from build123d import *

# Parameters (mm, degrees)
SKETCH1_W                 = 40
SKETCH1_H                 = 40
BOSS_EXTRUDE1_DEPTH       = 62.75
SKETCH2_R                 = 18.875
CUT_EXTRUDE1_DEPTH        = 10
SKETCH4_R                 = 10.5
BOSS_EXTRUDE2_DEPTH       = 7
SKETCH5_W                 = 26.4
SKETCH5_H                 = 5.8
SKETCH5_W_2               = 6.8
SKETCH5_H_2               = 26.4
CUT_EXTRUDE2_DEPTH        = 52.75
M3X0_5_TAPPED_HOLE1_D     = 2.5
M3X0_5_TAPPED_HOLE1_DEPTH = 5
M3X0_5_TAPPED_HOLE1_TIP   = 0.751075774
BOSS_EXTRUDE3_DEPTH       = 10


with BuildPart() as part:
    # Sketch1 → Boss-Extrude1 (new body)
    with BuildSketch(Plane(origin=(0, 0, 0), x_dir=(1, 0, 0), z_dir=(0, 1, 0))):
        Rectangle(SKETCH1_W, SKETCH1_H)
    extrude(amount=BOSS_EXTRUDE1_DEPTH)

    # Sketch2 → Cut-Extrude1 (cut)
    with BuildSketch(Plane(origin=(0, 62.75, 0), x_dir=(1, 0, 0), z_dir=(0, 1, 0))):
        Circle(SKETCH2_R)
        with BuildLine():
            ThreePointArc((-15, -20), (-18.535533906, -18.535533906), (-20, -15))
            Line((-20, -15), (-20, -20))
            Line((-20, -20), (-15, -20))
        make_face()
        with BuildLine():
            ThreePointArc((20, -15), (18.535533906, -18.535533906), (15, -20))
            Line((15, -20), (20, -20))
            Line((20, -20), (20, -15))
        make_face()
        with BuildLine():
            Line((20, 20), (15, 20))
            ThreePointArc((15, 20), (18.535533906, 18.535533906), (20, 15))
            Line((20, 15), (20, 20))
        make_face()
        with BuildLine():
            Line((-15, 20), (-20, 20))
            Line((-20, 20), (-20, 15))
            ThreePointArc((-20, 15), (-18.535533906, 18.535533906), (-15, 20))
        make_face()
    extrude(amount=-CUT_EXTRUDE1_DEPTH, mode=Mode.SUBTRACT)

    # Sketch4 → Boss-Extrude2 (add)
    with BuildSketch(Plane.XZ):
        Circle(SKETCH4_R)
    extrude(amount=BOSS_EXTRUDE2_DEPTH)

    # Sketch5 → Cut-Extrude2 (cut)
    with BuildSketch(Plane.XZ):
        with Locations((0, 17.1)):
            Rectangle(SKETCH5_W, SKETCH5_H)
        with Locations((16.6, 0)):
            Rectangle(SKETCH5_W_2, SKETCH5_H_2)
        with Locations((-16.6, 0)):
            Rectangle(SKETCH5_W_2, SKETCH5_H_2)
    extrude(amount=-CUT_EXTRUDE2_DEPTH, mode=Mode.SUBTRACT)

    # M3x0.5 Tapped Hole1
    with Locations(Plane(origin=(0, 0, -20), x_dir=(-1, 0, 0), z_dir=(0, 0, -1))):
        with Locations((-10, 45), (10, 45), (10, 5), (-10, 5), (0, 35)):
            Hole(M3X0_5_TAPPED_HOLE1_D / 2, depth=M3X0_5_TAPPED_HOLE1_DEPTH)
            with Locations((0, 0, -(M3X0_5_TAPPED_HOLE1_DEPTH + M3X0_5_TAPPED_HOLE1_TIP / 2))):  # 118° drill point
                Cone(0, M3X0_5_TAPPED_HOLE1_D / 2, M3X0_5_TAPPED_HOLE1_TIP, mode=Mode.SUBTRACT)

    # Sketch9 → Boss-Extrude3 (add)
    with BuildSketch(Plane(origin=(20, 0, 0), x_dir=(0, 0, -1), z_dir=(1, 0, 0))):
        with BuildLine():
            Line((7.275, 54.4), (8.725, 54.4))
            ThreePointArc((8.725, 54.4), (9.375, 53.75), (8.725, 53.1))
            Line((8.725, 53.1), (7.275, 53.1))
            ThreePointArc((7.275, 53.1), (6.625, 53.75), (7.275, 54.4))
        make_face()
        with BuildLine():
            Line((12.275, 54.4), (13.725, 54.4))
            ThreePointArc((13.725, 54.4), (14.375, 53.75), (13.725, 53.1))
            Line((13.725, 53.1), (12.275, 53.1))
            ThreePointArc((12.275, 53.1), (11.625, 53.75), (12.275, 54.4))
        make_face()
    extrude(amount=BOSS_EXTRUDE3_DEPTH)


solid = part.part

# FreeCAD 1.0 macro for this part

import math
import FreeCAD as App
import Part
import Sketcher
Q = App.Units.Quantity


def add_polygon(sketch, points):
    """Adds a closed chain of lines whose ends are joined by coincident constraints."""
    first, n = sketch.GeometryCount, len(points)
    for a, b in zip(points, points[1:] + points[:1]):
        sketch.addGeometry(Part.LineSegment(App.Vector(*a, 0), App.Vector(*b, 0)), False)
    for i in range(n):
        sketch.addConstraint(Sketcher.Constraint("Coincident", first + i, 2, first + (i + 1) % n, 1))

doc = App.newDocument("Part")
params = doc.addObject("Spreadsheet::Sheet", "Params")
for row, (alias, value) in enumerate([
    ("sketch1_width", "40 mm"),
    ("pad1_length", "62.75 mm"),
    ("sketch2_radius", "5 mm"),
    ("sketch2_diameter", "37.75 mm"),
    ("pocket1_length", "10 mm"),
    ("sketch3_diameter", "21 mm"),
    ("pad2_length", "7 mm"),
    ("sketch4_width", "26.4 mm"),
    ("sketch4_width2", "6.8 mm"),
    ("sketch4_height", "5.8 mm"),
    ("pocket2_length", "52.75 mm"),
    ("sketch5_diameter", "2.5 mm"),
    ("hole_diameter", "2.5 mm"),
    ("hole_depth", "5 mm"),
    ("sketch6_radius", "0.65 mm"),
    ("sketch6_height", "1.45 mm"),
    ("pad3_length", "10 mm"),
], start=1):
    params.set(f"A{row}", alias)
    params.set(f"B{row}", "=" + value)
    params.setAlias(f"B{row}", alias)

body = doc.addObject("PartDesign::Body", "Body")

sketch1 = doc.addObject("Sketcher::SketchObject", "Sketch")
body.addObject(sketch1)
sketch1.AttachmentSupport = (doc.XZ_Plane, [""])
sketch1.MapMode = "FlatFace"
add_polygon(sketch1, [(-20, -20), (-20, 20), (20, 20), (20, -20)])
sketch1.addConstraint(Sketcher.Constraint("Vertical", 0))
sketch1.addConstraint(Sketcher.Constraint("Horizontal", 1))
sketch1.addConstraint(Sketcher.Constraint("Vertical", 2))
sketch1.addConstraint(Sketcher.Constraint("Horizontal", 3))
sketch1.addConstraint(Sketcher.Constraint("Symmetric", 0, 2, 2, 2, -1, 1))
sketch1.addConstraint(Sketcher.Constraint("Equal", 3, 0))
sketch1.addConstraint(Sketcher.Constraint("DistanceX", 1, 1, 1, 2, Q("40 mm")))
sketch1.setExpression("Constraints[10]", "Params.sketch1_width")
pad1 = doc.addObject("PartDesign::Pad", "Pad")
body.addObject(pad1)
pad1.Profile = sketch1
pad1.setExpression("Length", "Params.pad1_length")
pad1.Reversed = True

sketch2 = doc.addObject("Sketcher::SketchObject", "Sketch001")
body.addObject(sketch2)
sketch2.AttachmentSupport = (doc.XZ_Plane, [""])
sketch2.MapMode = "FlatFace"
sketch2.AttachmentOffset = App.Placement(App.Vector(0, 0, -62.75), App.Rotation())
sketch2.addGeometry(Part.Circle(App.Vector(0, 0, 0), App.Vector(0, 0, 1), 18.875), False)
sketch2.addGeometry(Part.ArcOfCircle(Part.Circle(App.Vector(-15, 15, 0), App.Vector(0, 0, 1), 5), math.radians(90), math.radians(180)), False)
sketch2.addGeometry(Part.LineSegment(App.Vector(-20, 15, 0), App.Vector(-20, 20, 0)), False)
sketch2.addGeometry(Part.LineSegment(App.Vector(-20, 20, 0), App.Vector(-15, 20, 0)), False)
sketch2.addGeometry(Part.ArcOfCircle(Part.Circle(App.Vector(15, 15, 0), App.Vector(0, 0, 1), 5), math.radians(0), math.radians(90)), False)
sketch2.addGeometry(Part.LineSegment(App.Vector(15, 20, 0), App.Vector(20, 20, 0)), False)
sketch2.addGeometry(Part.LineSegment(App.Vector(20, 20, 0), App.Vector(20, 15, 0)), False)
sketch2.addGeometry(Part.LineSegment(App.Vector(20, -20, 0), App.Vector(15, -20, 0)), False)
sketch2.addGeometry(Part.ArcOfCircle(Part.Circle(App.Vector(15, -15, 0), App.Vector(0, 0, 1), 5), math.radians(-90), math.radians(0)), False)
sketch2.addGeometry(Part.LineSegment(App.Vector(20, -15, 0), App.Vector(20, -20, 0)), False)
sketch2.addGeometry(Part.LineSegment(App.Vector(-15, -20, 0), App.Vector(-20, -20, 0)), False)
sketch2.addGeometry(Part.LineSegment(App.Vector(-20, -20, 0), App.Vector(-20, -15, 0)), False)
sketch2.addGeometry(Part.ArcOfCircle(Part.Circle(App.Vector(-15, -15, 0), App.Vector(0, 0, 1), 5), math.radians(180), math.radians(270)), False)
sketch2.addConstraint(Sketcher.Constraint("Tangent", 1, 2, 2, 1))
sketch2.addConstraint(Sketcher.Constraint("Coincident", 2, 2, 3, 1))
sketch2.addConstraint(Sketcher.Constraint("Tangent", 3, 2, 1, 1))
sketch2.addConstraint(Sketcher.Constraint("Tangent", 4, 2, 5, 1))
sketch2.addConstraint(Sketcher.Constraint("Coincident", 5, 2, 6, 1))
sketch2.addConstraint(Sketcher.Constraint("Tangent", 6, 2, 4, 1))
sketch2.addConstraint(Sketcher.Constraint("Tangent", 7, 2, 8, 1))
sketch2.addConstraint(Sketcher.Constraint("Tangent", 8, 2, 9, 1))
sketch2.addConstraint(Sketcher.Constraint("Coincident", 9, 2, 7, 1))
sketch2.addConstraint(Sketcher.Constraint("Coincident", 10, 2, 11, 1))
sketch2.addConstraint(Sketcher.Constraint("Tangent", 11, 2, 12, 1))
sketch2.addConstraint(Sketcher.Constraint("Tangent", 12, 2, 10, 1))
sketch2.addConstraint(Sketcher.Constraint("Vertical", 2))
sketch2.addConstraint(Sketcher.Constraint("Horizontal", 3))
sketch2.addConstraint(Sketcher.Constraint("Horizontal", 5))
sketch2.addConstraint(Sketcher.Constraint("Vertical", 6))
sketch2.addConstraint(Sketcher.Constraint("Horizontal", 7))
sketch2.addConstraint(Sketcher.Constraint("Vertical", 9))
sketch2.addConstraint(Sketcher.Constraint("Horizontal", 10))
sketch2.addConstraint(Sketcher.Constraint("Vertical", 11))
sketch2.addConstraint(Sketcher.Constraint("Coincident", 0, 3, -1, 1))
sketch2.addConstraint(Sketcher.Constraint("Equal", 1, 4))
sketch2.addConstraint(Sketcher.Constraint("Equal", 4, 8))
sketch2.addConstraint(Sketcher.Constraint("Equal", 8, 12))
sketch2.addConstraint(Sketcher.Constraint("Symmetric", 1, 3, 8, 3, -1, 1))
sketch2.addConstraint(Sketcher.Constraint("Symmetric", 4, 3, 12, 3, -1, 1))
sketch2.addConstraint(Sketcher.Constraint("Symmetric", 1, 3, 4, 3, -2))
sketch2.addConstraint(Sketcher.Constraint("Radius", 1, Q("5 mm")))
sketch2.addConstraint(Sketcher.Constraint("Diameter", 0, Q("37.75 mm")))
sketch2.addConstraint(Sketcher.Constraint("DistanceX", 1, 3, -1, 1, Q("15 mm")))
sketch2.addConstraint(Sketcher.Constraint("DistanceY", -1, 1, 1, 3, Q("15 mm")))
sketch2.setExpression("Constraints[27]", "Params.sketch2_radius")
sketch2.setExpression("Constraints[28]", "Params.sketch2_diameter")
pocket1 = doc.addObject("PartDesign::Pocket", "Pocket")
body.addObject(pocket1)
pocket1.Profile = sketch2
pocket1.setExpression("Length", "Params.pocket1_length")
pocket1.Reversed = True

sketch3 = doc.addObject("Sketcher::SketchObject", "Sketch002")
body.addObject(sketch3)
sketch3.AttachmentSupport = (doc.XZ_Plane, [""])
sketch3.MapMode = "FlatFace"
sketch3.addGeometry(Part.Circle(App.Vector(0, 0, 0), App.Vector(0, 0, 1), 10.5), False)
sketch3.addConstraint(Sketcher.Constraint("Coincident", 0, 3, -1, 1))
sketch3.addConstraint(Sketcher.Constraint("Diameter", 0, Q("21 mm")))
sketch3.setExpression("Constraints[1]", "Params.sketch3_diameter")
pad2 = doc.addObject("PartDesign::Pad", "Pad001")
body.addObject(pad2)
pad2.Profile = sketch3
pad2.setExpression("Length", "Params.pad2_length")

sketch4 = doc.addObject("Sketcher::SketchObject", "Sketch003")
body.addObject(sketch4)
sketch4.AttachmentSupport = (doc.XZ_Plane, [""])
sketch4.MapMode = "FlatFace"
add_polygon(sketch4, [(-13.2, 20), (-13.2, 14.2), (13.2, 14.2), (13.2, 20)])
add_polygon(sketch4, [(13.2, 13.2), (13.2, -13.2), (20, -13.2), (20, 13.2)])
add_polygon(sketch4, [(-20, 13.2), (-20, -13.2), (-13.2, -13.2), (-13.2, 13.2)])
sketch4.addConstraint(Sketcher.Constraint("Vertical", 0))
sketch4.addConstraint(Sketcher.Constraint("Horizontal", 1))
sketch4.addConstraint(Sketcher.Constraint("Vertical", 2))
sketch4.addConstraint(Sketcher.Constraint("Horizontal", 3))
sketch4.addConstraint(Sketcher.Constraint("Vertical", 4))
sketch4.addConstraint(Sketcher.Constraint("Horizontal", 5))
sketch4.addConstraint(Sketcher.Constraint("Vertical", 6))
sketch4.addConstraint(Sketcher.Constraint("Horizontal", 7))
sketch4.addConstraint(Sketcher.Constraint("Vertical", 8))
sketch4.addConstraint(Sketcher.Constraint("Horizontal", 9))
sketch4.addConstraint(Sketcher.Constraint("Vertical", 10))
sketch4.addConstraint(Sketcher.Constraint("Horizontal", 11))
sketch4.addConstraint(Sketcher.Constraint("Symmetric", 6, 2, 8, 2, -1, 1))
sketch4.addConstraint(Sketcher.Constraint("Symmetric", 4, 2, 10, 2, -1, 1))
sketch4.addConstraint(Sketcher.Constraint("Horizontal", 5, 2, 8, 2))
sketch4.addConstraint(Sketcher.Constraint("Vertical", 2, 2, 4, 2))
sketch4.addConstraint(Sketcher.Constraint("Vertical", 3, 2, 9, 2))
sketch4.addConstraint(Sketcher.Constraint("Equal", 3, 4))
sketch4.addConstraint(Sketcher.Constraint("DistanceX", 1, 1, 1, 2, Q("26.4 mm")))
sketch4.addConstraint(Sketcher.Constraint("DistanceX", 5, 1, 5, 2, Q("6.8 mm")))
sketch4.addConstraint(Sketcher.Constraint("DistanceY", 0, 2, 0, 1, Q("5.8 mm")))
sketch4.addConstraint(Sketcher.Constraint("DistanceY", -1, 1, 2, 2, Q("20 mm")))
sketch4.setExpression("Constraints[30]", "Params.sketch4_width")
sketch4.setExpression("Constraints[31]", "Params.sketch4_width2")
sketch4.setExpression("Constraints[32]", "Params.sketch4_height")
pocket2 = doc.addObject("PartDesign::Pocket", "Pocket001")
body.addObject(pocket2)
pocket2.Profile = sketch4
pocket2.setExpression("Length", "Params.pocket2_length")

sketch5 = doc.addObject("Sketcher::SketchObject", "Sketch004")
body.addObject(sketch5)
sketch5.AttachmentSupport = (doc.XY_Plane, [""])
sketch5.MapMode = "FlatFace"
sketch5.AttachmentOffset = App.Placement(App.Vector(0, 0, -20), App.Rotation())
sketch5.addGeometry(Part.Circle(App.Vector(10, 45, 0), App.Vector(0, 0, 1), 1.25), False)
sketch5.addGeometry(Part.Circle(App.Vector(-10, 45, 0), App.Vector(0, 0, 1), 1.25), False)
sketch5.addGeometry(Part.Circle(App.Vector(-10, 5, 0), App.Vector(0, 0, 1), 1.25), False)
sketch5.addGeometry(Part.Circle(App.Vector(10, 5, 0), App.Vector(0, 0, 1), 1.25), False)
sketch5.addGeometry(Part.Circle(App.Vector(0, 35, 0), App.Vector(0, 0, 1), 1.25), False)
sketch5.addConstraint(Sketcher.Constraint("Equal", 0, 1))
sketch5.addConstraint(Sketcher.Constraint("Equal", 1, 2))
sketch5.addConstraint(Sketcher.Constraint("Equal", 2, 3))
sketch5.addConstraint(Sketcher.Constraint("Equal", 3, 4))
sketch5.addConstraint(Sketcher.Constraint("Symmetric", 0, 3, 1, 3, -2))
sketch5.addConstraint(Sketcher.Constraint("Symmetric", 2, 3, 3, 3, -2))
sketch5.addConstraint(Sketcher.Constraint("PointOnObject", 4, 3, -2))
sketch5.addConstraint(Sketcher.Constraint("Vertical", 1, 3, 2, 3))
sketch5.addConstraint(Sketcher.Constraint("Diameter", 0, Q("2.5 mm")))
sketch5.addConstraint(Sketcher.Constraint("DistanceX", -1, 1, 0, 3, Q("10 mm")))
sketch5.addConstraint(Sketcher.Constraint("DistanceY", -1, 1, 0, 3, Q("45 mm")))
sketch5.addConstraint(Sketcher.Constraint("DistanceY", -1, 1, 2, 3, Q("5 mm")))
sketch5.addConstraint(Sketcher.Constraint("DistanceY", -1, 1, 4, 3, Q("35 mm")))
sketch5.setExpression("Constraints[8]", "Params.sketch5_diameter")
doc.recompute()
hole = doc.addObject("PartDesign::Hole", "Hole")
body.addObject(hole)
hole.Profile = sketch5
hole.ThreadType = "None"
hole.setExpression("Diameter", "Params.hole_diameter")
hole.DepthType = "Dimension"
hole.setExpression("Depth", "Params.hole_depth")
hole.DrillPoint = "Angled"
hole.DrillPointAngle = 118
hole.Reversed = True

sketch6 = doc.addObject("Sketcher::SketchObject", "Sketch005")
body.addObject(sketch6)
sketch6.AttachmentSupport = (doc.YZ_Plane, [""])
sketch6.MapMode = "FlatFace"
sketch6.AttachmentOffset = App.Placement(App.Vector(0, 0, 20), App.Rotation())
sketch6.addGeometry(Part.LineSegment(App.Vector(54.4, -8.725, 0), App.Vector(54.4, -7.275, 0)), False)
sketch6.addGeometry(Part.ArcOfCircle(Part.Circle(App.Vector(53.75, -7.275, 0), App.Vector(0, 0, 1), 0.65), math.radians(0), math.radians(180)), False)
sketch6.addGeometry(Part.LineSegment(App.Vector(53.1, -7.275, 0), App.Vector(53.1, -8.725, 0)), False)
sketch6.addGeometry(Part.ArcOfCircle(Part.Circle(App.Vector(53.75, -8.725, 0), App.Vector(0, 0, 1), 0.65), math.radians(180), math.radians(360)), False)
sketch6.addGeometry(Part.LineSegment(App.Vector(54.4, -13.725, 0), App.Vector(54.4, -12.275, 0)), False)
sketch6.addGeometry(Part.ArcOfCircle(Part.Circle(App.Vector(53.75, -12.275, 0), App.Vector(0, 0, 1), 0.65), math.radians(0), math.radians(180)), False)
sketch6.addGeometry(Part.LineSegment(App.Vector(53.1, -12.275, 0), App.Vector(53.1, -13.725, 0)), False)
sketch6.addGeometry(Part.ArcOfCircle(Part.Circle(App.Vector(53.75, -13.725, 0), App.Vector(0, 0, 1), 0.65), math.radians(180), math.radians(360)), False)
sketch6.addConstraint(Sketcher.Constraint("Tangent", 0, 2, 1, 1))
sketch6.addConstraint(Sketcher.Constraint("Tangent", 1, 2, 2, 1))
sketch6.addConstraint(Sketcher.Constraint("Tangent", 2, 2, 3, 1))
sketch6.addConstraint(Sketcher.Constraint("Tangent", 3, 2, 0, 1))
sketch6.addConstraint(Sketcher.Constraint("Tangent", 4, 2, 5, 1))
sketch6.addConstraint(Sketcher.Constraint("Tangent", 5, 2, 6, 1))
sketch6.addConstraint(Sketcher.Constraint("Tangent", 6, 2, 7, 1))
sketch6.addConstraint(Sketcher.Constraint("Tangent", 7, 2, 4, 1))
sketch6.addConstraint(Sketcher.Constraint("Vertical", 0))
sketch6.addConstraint(Sketcher.Constraint("Vertical", 2))
sketch6.addConstraint(Sketcher.Constraint("Vertical", 4))
sketch6.addConstraint(Sketcher.Constraint("Vertical", 6))
sketch6.addConstraint(Sketcher.Constraint("Equal", 3, 5))
sketch6.addConstraint(Sketcher.Constraint("Vertical", 3, 3, 5, 3))
sketch6.addConstraint(Sketcher.Constraint("Equal", 2, 4))
sketch6.addConstraint(Sketcher.Constraint("Radius", 1, Q("0.65 mm")))
sketch6.addConstraint(Sketcher.Constraint("DistanceY", 5, 3, 1, 3, Q("5 mm")))
sketch6.addConstraint(Sketcher.Constraint("DistanceY", 0, 1, 0, 2, Q("1.45 mm")))
sketch6.addConstraint(Sketcher.Constraint("DistanceX", -1, 1, 0, 2, Q("54.4 mm")))
sketch6.addConstraint(Sketcher.Constraint("DistanceY", 1, 3, -1, 1, Q("7.275 mm")))
sketch6.setExpression("Constraints[15]", "Params.sketch6_radius")
sketch6.setExpression("Constraints[17]", "Params.sketch6_height")
pad3 = doc.addObject("PartDesign::Pad", "Pad002")
body.addObject(pad3)
pad3.Profile = sketch6
pad3.setExpression("Length", "Params.pad3_length")

doc.recompute()
